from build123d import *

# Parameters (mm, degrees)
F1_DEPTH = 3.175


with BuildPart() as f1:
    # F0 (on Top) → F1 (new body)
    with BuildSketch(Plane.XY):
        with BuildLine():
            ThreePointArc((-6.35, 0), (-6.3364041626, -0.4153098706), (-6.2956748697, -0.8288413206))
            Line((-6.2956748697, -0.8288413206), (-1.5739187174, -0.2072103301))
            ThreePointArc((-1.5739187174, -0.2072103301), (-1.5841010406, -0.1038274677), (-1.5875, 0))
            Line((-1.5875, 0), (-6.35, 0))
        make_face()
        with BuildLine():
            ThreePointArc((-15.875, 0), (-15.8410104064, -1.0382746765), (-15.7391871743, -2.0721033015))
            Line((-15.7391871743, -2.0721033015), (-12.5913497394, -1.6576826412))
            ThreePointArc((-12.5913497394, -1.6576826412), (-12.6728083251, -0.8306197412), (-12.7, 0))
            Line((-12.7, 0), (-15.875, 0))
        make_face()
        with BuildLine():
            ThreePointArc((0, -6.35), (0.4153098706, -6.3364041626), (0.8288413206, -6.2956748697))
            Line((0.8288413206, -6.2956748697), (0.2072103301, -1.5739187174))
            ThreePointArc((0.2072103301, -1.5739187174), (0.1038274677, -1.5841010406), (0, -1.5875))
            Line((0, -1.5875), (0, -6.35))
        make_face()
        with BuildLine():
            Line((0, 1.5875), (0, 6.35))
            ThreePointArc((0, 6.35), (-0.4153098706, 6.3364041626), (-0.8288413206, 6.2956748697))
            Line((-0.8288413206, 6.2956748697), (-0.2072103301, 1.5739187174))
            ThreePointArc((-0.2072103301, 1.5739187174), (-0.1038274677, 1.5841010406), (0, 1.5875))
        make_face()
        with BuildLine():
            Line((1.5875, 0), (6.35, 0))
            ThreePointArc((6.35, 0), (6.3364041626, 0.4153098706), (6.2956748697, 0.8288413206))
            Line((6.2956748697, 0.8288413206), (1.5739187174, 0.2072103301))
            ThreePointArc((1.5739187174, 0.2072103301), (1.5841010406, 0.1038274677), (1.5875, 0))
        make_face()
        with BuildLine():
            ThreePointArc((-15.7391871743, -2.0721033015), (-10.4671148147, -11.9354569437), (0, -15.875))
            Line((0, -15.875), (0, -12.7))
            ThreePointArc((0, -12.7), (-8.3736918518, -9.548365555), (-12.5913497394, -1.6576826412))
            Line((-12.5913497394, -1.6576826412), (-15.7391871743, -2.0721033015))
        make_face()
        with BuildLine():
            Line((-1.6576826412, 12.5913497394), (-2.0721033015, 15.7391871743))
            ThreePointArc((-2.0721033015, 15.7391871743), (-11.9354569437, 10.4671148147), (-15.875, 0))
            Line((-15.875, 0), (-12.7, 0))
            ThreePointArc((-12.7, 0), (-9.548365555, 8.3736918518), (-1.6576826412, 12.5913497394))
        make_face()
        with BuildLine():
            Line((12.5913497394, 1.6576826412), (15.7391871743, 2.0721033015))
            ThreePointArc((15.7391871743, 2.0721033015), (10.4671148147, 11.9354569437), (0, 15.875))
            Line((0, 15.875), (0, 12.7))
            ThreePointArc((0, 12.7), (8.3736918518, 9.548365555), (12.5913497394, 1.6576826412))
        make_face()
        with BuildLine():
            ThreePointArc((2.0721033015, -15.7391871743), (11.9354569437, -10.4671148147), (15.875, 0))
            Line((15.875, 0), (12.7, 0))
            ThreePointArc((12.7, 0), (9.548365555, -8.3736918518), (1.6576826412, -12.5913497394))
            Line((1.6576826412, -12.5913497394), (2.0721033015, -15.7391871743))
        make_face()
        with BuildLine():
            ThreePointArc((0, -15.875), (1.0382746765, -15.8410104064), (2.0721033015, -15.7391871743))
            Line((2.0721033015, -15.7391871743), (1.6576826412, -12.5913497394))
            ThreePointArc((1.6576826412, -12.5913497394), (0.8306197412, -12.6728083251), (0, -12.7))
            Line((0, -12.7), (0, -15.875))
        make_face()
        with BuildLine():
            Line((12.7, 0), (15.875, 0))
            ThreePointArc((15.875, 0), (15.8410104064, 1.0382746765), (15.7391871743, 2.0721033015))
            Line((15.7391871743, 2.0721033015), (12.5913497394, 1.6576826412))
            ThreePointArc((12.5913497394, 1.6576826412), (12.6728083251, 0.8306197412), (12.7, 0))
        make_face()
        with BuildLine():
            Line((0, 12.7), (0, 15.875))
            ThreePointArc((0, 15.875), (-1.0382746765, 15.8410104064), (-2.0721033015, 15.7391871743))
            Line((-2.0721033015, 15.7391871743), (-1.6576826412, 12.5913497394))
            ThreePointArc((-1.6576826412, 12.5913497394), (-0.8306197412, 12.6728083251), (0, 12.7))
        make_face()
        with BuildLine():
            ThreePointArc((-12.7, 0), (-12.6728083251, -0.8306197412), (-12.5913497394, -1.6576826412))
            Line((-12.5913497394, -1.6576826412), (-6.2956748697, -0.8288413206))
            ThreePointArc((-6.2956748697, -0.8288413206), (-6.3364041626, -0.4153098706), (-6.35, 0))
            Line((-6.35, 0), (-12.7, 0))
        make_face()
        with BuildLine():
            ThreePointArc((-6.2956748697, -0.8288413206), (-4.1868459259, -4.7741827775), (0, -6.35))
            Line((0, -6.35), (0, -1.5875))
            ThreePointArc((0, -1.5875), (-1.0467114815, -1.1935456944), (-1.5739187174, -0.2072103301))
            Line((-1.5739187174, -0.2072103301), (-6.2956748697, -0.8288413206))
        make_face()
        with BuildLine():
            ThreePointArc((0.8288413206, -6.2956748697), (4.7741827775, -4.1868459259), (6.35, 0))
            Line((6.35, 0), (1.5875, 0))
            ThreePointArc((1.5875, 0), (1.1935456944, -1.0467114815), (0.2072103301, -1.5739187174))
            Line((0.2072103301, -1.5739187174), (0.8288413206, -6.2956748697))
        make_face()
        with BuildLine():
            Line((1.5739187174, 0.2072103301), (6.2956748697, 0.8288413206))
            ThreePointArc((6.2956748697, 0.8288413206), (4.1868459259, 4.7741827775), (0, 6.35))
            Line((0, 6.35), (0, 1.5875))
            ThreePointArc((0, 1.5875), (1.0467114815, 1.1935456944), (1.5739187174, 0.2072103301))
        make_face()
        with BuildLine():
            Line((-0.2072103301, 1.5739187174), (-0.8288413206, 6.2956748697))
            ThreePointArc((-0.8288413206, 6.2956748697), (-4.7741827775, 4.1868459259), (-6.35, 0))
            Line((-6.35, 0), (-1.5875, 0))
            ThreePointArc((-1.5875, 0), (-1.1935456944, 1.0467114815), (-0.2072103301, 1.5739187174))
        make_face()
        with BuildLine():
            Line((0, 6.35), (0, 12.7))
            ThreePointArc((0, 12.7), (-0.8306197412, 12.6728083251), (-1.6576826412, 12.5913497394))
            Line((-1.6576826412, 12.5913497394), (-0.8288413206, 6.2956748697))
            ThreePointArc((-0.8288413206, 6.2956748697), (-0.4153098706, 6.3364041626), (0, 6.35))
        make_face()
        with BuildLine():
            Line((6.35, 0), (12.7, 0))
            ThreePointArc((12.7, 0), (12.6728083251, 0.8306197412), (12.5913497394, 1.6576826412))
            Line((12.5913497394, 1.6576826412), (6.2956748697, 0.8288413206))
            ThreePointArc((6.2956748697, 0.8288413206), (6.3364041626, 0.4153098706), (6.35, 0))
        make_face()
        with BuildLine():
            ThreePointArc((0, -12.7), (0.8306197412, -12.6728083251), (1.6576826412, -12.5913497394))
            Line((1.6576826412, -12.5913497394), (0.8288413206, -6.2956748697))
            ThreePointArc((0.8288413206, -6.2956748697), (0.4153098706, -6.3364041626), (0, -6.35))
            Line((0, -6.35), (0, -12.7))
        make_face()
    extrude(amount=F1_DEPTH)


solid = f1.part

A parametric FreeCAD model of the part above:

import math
import FreeCAD as App
import Part
import Sketcher
from FreeCAD import Vector
Q = App.Units.Quantity

doc = App.newDocument("Part")
params = doc.addObject("Spreadsheet::Sheet", "Params")
for row, (alias, value) in enumerate([
    ("sketch1_radius", "0.5 in"),
    ("sketch1_radius2", "0.25 in"),
    ("sketch1_radius3", "0.625 in"),
    ("sketch1_radius4", "0.0625 in"),
    ("pad1_length", "0.125 in"),
], start=1):
    params.set(f"A{row}", alias)
    params.set(f"B{row}", "=" + value)
    params.setAlias(f"B{row}", alias)

body = doc.addObject("PartDesign::Body", "Body")

sketch1 = doc.addObject("Sketcher::SketchObject", "Sketch")
body.addObject(sketch1)
sketch1.AttachmentSupport = (doc.XY_Plane, [""])
sketch1.MapMode = "FlatFace"
sketch1.addGeometry([
    Part.ArcOfCircle(Part.Circle(Vector(0, 0, 0), Vector(0, 0, 1), 15.88), math.radians(180), math.radians(187.5)),
    Part.ArcOfCircle(Part.Circle(Vector(0, 0, 0), Vector(0, 0, 1), 15.88), math.radians(-173), math.radians(-90)),
    Part.ArcOfCircle(Part.Circle(Vector(0, 0, 0), Vector(0, 0, 1), 15.88), math.radians(-90), math.radians(-82.5)),
    Part.ArcOfCircle(Part.Circle(Vector(0, 0, 0), Vector(0, 0, 1), 15.88), math.radians(-83), math.radians(0)),
    Part.ArcOfCircle(Part.Circle(Vector(0, 0, 0), Vector(0, 0, 1), 15.88), math.radians(0), math.radians(7.5)),
    Part.ArcOfCircle(Part.Circle(Vector(0, 0, 0), Vector(0, 0, 1), 15.88), math.radians(7), math.radians(90)),
    Part.ArcOfCircle(Part.Circle(Vector(0, 0, 0), Vector(0, 0, 1), 15.88), math.radians(90), math.radians(97.5)),
    Part.ArcOfCircle(Part.Circle(Vector(0, 0, 0), Vector(0, 0, 1), 15.88), math.radians(97), math.radians(180)),
    Part.ArcOfCircle(Part.Circle(Vector(0, 0, 0), Vector(0, 0, 1), 1.59), math.radians(-180), math.radians(-172.5)),
    Part.ArcOfCircle(Part.Circle(Vector(0, 0, 0), Vector(0, 0, 1), 1.59), math.radians(97), math.radians(180)),
    Part.ArcOfCircle(Part.Circle(Vector(0, 0, 0), Vector(0, 0, 1), 1.59), math.radians(90), math.radians(97.5)),
    Part.ArcOfCircle(Part.Circle(Vector(0, 0, 0), Vector(0, 0, 1), 1.59), math.radians(7), math.radians(90)),
    Part.ArcOfCircle(Part.Circle(Vector(0, 0, 0), Vector(0, 0, 1), 1.59), math.radians(0), math.radians(7.5)),
    Part.ArcOfCircle(Part.Circle(Vector(0, 0, 0), Vector(0, 0, 1), 1.59), math.radians(-83), math.radians(0)),
    Part.ArcOfCircle(Part.Circle(Vector(0, 0, 0), Vector(0, 0, 1), 1.59), math.radians(-90), math.radians(-82.5)),
    Part.ArcOfCircle(Part.Circle(Vector(0, 0, 0), Vector(0, 0, 1), 1.59), math.radians(-173), math.radians(-90)),
    Part.LineSegment(Vector(-6.35, 0, 0), Vector(-12.7, 0, 0)),
    Part.ArcOfCircle(Part.Circle(Vector(0, 0, 0), Vector(0, 0, 1), 12.7), math.radians(97), math.radians(180)),
    Part.LineSegment(Vector(-1.66, 12.59, 0), Vector(-0.83, 6.3, 0)),
    Part.ArcOfCircle(Part.Circle(Vector(0, 0, 0), Vector(0, 0, 1), 6.35), math.radians(98), math.radians(180)),
    Part.ArcOfCircle(Part.Circle(Vector(0, 0, 0), Vector(0, 0, 1), 12.7), math.radians(7), math.radians(90)),
    Part.LineSegment(Vector(12.59, 1.66, 0), Vector(6.3, 0.83, 0)),
    Part.ArcOfCircle(Part.Circle(Vector(0, 0, 0), Vector(0, 0, 1), 6.35), math.radians(8), math.radians(90)),
    Part.LineSegment(Vector(0, 6.35, 0), Vector(0, 12.7, 0)),
    Part.ArcOfCircle(Part.Circle(Vector(0, 0, 0), Vector(0, 0, 1), 12.7), math.radians(-83), math.radians(0)),
    Part.LineSegment(Vector(1.66, -12.59, 0), Vector(0.83, -6.3, 0)),
    Part.ArcOfCircle(Part.Circle(Vector(0, 0, 0), Vector(0, 0, 1), 6.35), math.radians(-82), math.radians(0)),
    Part.LineSegment(Vector(6.35, 0, 0), Vector(12.7, 0, 0)),
    Part.ArcOfCircle(Part.Circle(Vector(0, 0, 0), Vector(0, 0, 1), 12.7), math.radians(-173), math.radians(-90)),
    Part.LineSegment(Vector(-12.59, -1.66, 0), Vector(-6.3, -0.83, 0)),
    Part.ArcOfCircle(Part.Circle(Vector(0, 0, 0), Vector(0, 0, 1), 6.35), math.radians(-172), math.radians(-90)),
    Part.LineSegment(Vector(0, -6.35, 0), Vector(0, -12.7, 0)),
], False)
sketch1.addConstraint([
    Sketcher.Constraint("Tangent", 0, 2, 1, 1),
    Sketcher.Constraint("Tangent", 1, 2, 2, 1),
    Sketcher.Constraint("Tangent", 2, 2, 3, 1),
    Sketcher.Constraint("Tangent", 3, 2, 4, 1),
    Sketcher.Constraint("Tangent", 4, 2, 5, 1),
    Sketcher.Constraint("Tangent", 5, 2, 6, 1),
    Sketcher.Constraint("Tangent", 6, 2, 7, 1),
    Sketcher.Constraint("Tangent", 7, 2, 0, 1),
    Sketcher.Constraint("Tangent", 8, 1, 9, 2),
    Sketcher.Constraint("Tangent", 9, 1, 10, 2),
    Sketcher.Constraint("Tangent", 10, 1, 11, 2),
    Sketcher.Constraint("Tangent", 11, 1, 12, 2),
    Sketcher.Constraint("Tangent", 12, 1, 13, 2),
    Sketcher.Constraint("Tangent", 13, 1, 14, 2),
    Sketcher.Constraint("Tangent", 14, 1, 15, 2),
    Sketcher.Constraint("Tangent", 15, 1, 8, 2),
    Sketcher.Constraint("Coincident", 16, 2, 17, 2),
    Sketcher.Constraint("Coincident", 17, 1, 18, 1),
    Sketcher.Constraint("Coincident", 18, 2, 19, 1),
    Sketcher.Constraint("Coincident", 19, 2, 16, 1),
    Sketcher.Constraint("Coincident", 20, 1, 21, 1),
    Sketcher.Constraint("Coincident", 21, 2, 22, 1),
    Sketcher.Constraint("Coincident", 22, 2, 23, 1),
    Sketcher.Constraint("Coincident", 23, 2, 20, 2),
    Sketcher.Constraint("Coincident", 24, 1, 25, 1),
    Sketcher.Constraint("Coincident", 25, 2, 26, 1),
    Sketcher.Constraint("Coincident", 26, 2, 27, 1),
    Sketcher.Constraint("Coincident", 27, 2, 24, 2),
    Sketcher.Constraint("Coincident", 28, 1, 29, 1),
    Sketcher.Constraint("Coincident", 29, 2, 30, 1),
    Sketcher.Constraint("Coincident", 30, 2, 31, 1),
    Sketcher.Constraint("Coincident", 31, 2, 28, 2),
    Sketcher.Constraint("Horizontal", 16),
    Sketcher.Constraint("Vertical", 23),
    Sketcher.Constraint("Horizontal", 27),
    Sketcher.Constraint("Vertical", 31),
    Sketcher.Constraint("Coincident", 0, 3, -1, 1),
    Sketcher.Constraint("Coincident", 2, 3, -1, 1),
    Sketcher.Constraint("Coincident", 4, 3, -1, 1),
    Sketcher.Constraint("Coincident", 8, 3, -1, 1),
    Sketcher.Constraint("Coincident", 10, 3, -1, 1),
    Sketcher.Constraint("Coincident", 12, 3, -1, 1),
    Sketcher.Constraint("Coincident", 17, 3, -1, 1),
    Sketcher.Constraint("Coincident", 19, 3, -1, 1),
    Sketcher.Constraint("Coincident", 20, 3, -1, 1),
    Sketcher.Constraint("Coincident", 22, 3, -1, 1),
    Sketcher.Constraint("Coincident", 24, 3, -1, 1),
    Sketcher.Constraint("Coincident", 26, 3, -1, 1),
    Sketcher.Constraint("Coincident", 28, 3, -1, 1),
    Sketcher.Constraint("Coincident", 30, 3, -1, 1),
    Sketcher.Constraint("Equal", 4, 5),
    Sketcher.Constraint("Equal", 12, 13),
    Sketcher.Constraint("Equal", 17, 20),
    Sketcher.Constraint("Equal", 19, 22),
    Sketcher.Constraint("Equal", 20, 24),
    Sketcher.Constraint("Equal", 22, 26),
    Sketcher.Constraint("Equal", 24, 28),
    Sketcher.Constraint("Equal", 26, 30),
    Sketcher.Constraint("PointOnObject", 1, 2, -2),
    Sketcher.Constraint("PointOnObject", 3, 2, -1),
    Sketcher.Constraint("PointOnObject", 5, 2, -2),
    Sketcher.Constraint("PointOnObject", 7, 2, -1),
    Sketcher.Constraint("PointOnObject", 8, 1, -1),
    Sketcher.Constraint("PointOnObject", 10, 1, -2),
    Sketcher.Constraint("PointOnObject", 12, 1, -1),
    Sketcher.Constraint("PointOnObject", 14, 1, -2),
    Sketcher.Constraint("PointOnObject", 16, 2, -1),
    Sketcher.Constraint("PointOnObject", 22, 2, -2),
    Sketcher.Constraint("PointOnObject", 26, 2, -1),
    Sketcher.Constraint("PointOnObject", 30, 2, -2),
    Sketcher.Constraint("Perpendicular", 18, 21),
    Sketcher.Constraint("Perpendicular", 21, 25),
    Sketcher.Constraint("Perpendicular", 25, 29),
    Sketcher.Constraint("Radius", 17, Q("0.5 in")),
    Sketcher.Constraint("Radius", 19, Q("0.25 in")),
    Sketcher.Constraint("Radius", 0, Q("0.625 in")),
    Sketcher.Constraint("Radius", 8, Q("0.0625 in")),
    Sketcher.Constraint("Angle", 18, Q("-82.5 deg")),
    Sketcher.Constraint("DistanceX", 9, 1, -1, 1, 0.20721),
    Sketcher.Constraint("DistanceX", -1, 1, 11, 1, 1.573919),
    Sketcher.Constraint("DistanceX", -1, 1, 13, 1, 0.20721),
    Sketcher.Constraint("DistanceX", 15, 1, -1, 1, 1.573919),
    Sketcher.Constraint("DistanceY", -1, 1, 17, 1, 12.59135),
    Sketcher.Constraint("DistanceX", -1, 1, 20, 1, 12.59135),
    Sketcher.Constraint("DistanceY", 24, 1, -1, 1, 12.59135),
    Sketcher.Constraint("DistanceX", 28, 1, -1, 1, 12.59135),
    Sketcher.Constraint("DistanceX", 6, 2, 17, 1, 0.414421),
    Sketcher.Constraint("DistanceY", 20, 1, 4, 2, 0.414421),
    Sketcher.Constraint("DistanceX", 24, 1, 2, 2, 0.414421),
    Sketcher.Constraint("DistanceY", 0, 2, 28, 1, 0.414421),
])
sketch1.setExpression("Constraints[73]", "Params.sketch1_radius")
sketch1.setExpression("Constraints[74]", "Params.sketch1_radius2")
sketch1.setExpression("Constraints[75]", "Params.sketch1_radius3")
sketch1.setExpression("Constraints[76]", "Params.sketch1_radius4")
pad1 = doc.addObject("PartDesign::Pad", "Pad")
body.addObject(pad1)
pad1.Profile = sketch1
pad1.setExpression("Length", "Params.pad1_length")

doc.recompute()
